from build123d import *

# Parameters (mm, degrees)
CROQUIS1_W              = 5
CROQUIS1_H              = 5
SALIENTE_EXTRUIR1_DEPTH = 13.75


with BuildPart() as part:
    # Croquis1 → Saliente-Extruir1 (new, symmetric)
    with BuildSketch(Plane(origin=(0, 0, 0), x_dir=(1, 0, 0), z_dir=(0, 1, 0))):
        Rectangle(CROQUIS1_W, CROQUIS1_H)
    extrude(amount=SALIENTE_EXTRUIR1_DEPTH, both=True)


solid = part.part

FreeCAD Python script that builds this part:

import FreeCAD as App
import Part
import Sketcher
Q = App.Units.Quantity


def add_polygon(sketch, points):
    """Adds a closed chain of lines whose ends are joined by coincident constraints."""
    first, n = sketch.GeometryCount, len(points)
    for a, b in zip(points, points[1:] + points[:1]):
        sketch.addGeometry(Part.LineSegment(App.Vector(*a, 0), App.Vector(*b, 0)), False)
    for i in range(n):
        sketch.addConstraint(Sketcher.Constraint("Coincident", first + i, 2, first + (i + 1) % n, 1))

doc = App.newDocument("Part")
body = doc.addObject("PartDesign::Body", "Body")

# Sketch on XZ plane
sketch1 = body.newObject("Sketcher::SketchObject", "Sketch")
sketch1.AttachmentSupport = (doc.getObject("XZ_Plane"), [""])
sketch1.MapMode = "FlatFace"
add_polygon(sketch1, [(-2, -2), (-2, 2), (2, 2), (2, -2)])  # lines 0-3
sketch1.addConstraint([
    Sketcher.Constraint("Vertical", 0),
    Sketcher.Constraint("Horizontal", 1),
    Sketcher.Constraint("Vertical", 2),
    Sketcher.Constraint("Horizontal", 3),
    Sketcher.Constraint("Symmetric", 0, 2, 2, 2, -1, 1),
    Sketcher.Constraint("Equal", 3, 0),
    Sketcher.Constraint("DistanceX", 1, 1, 1, 2, Q("5 mm")),
])
pad1 = body.newObject("PartDesign::Pad", "Pad")
pad1.Profile = sketch1
pad1.Length = 27.5
pad1.Midplane = True

doc.recompute()
